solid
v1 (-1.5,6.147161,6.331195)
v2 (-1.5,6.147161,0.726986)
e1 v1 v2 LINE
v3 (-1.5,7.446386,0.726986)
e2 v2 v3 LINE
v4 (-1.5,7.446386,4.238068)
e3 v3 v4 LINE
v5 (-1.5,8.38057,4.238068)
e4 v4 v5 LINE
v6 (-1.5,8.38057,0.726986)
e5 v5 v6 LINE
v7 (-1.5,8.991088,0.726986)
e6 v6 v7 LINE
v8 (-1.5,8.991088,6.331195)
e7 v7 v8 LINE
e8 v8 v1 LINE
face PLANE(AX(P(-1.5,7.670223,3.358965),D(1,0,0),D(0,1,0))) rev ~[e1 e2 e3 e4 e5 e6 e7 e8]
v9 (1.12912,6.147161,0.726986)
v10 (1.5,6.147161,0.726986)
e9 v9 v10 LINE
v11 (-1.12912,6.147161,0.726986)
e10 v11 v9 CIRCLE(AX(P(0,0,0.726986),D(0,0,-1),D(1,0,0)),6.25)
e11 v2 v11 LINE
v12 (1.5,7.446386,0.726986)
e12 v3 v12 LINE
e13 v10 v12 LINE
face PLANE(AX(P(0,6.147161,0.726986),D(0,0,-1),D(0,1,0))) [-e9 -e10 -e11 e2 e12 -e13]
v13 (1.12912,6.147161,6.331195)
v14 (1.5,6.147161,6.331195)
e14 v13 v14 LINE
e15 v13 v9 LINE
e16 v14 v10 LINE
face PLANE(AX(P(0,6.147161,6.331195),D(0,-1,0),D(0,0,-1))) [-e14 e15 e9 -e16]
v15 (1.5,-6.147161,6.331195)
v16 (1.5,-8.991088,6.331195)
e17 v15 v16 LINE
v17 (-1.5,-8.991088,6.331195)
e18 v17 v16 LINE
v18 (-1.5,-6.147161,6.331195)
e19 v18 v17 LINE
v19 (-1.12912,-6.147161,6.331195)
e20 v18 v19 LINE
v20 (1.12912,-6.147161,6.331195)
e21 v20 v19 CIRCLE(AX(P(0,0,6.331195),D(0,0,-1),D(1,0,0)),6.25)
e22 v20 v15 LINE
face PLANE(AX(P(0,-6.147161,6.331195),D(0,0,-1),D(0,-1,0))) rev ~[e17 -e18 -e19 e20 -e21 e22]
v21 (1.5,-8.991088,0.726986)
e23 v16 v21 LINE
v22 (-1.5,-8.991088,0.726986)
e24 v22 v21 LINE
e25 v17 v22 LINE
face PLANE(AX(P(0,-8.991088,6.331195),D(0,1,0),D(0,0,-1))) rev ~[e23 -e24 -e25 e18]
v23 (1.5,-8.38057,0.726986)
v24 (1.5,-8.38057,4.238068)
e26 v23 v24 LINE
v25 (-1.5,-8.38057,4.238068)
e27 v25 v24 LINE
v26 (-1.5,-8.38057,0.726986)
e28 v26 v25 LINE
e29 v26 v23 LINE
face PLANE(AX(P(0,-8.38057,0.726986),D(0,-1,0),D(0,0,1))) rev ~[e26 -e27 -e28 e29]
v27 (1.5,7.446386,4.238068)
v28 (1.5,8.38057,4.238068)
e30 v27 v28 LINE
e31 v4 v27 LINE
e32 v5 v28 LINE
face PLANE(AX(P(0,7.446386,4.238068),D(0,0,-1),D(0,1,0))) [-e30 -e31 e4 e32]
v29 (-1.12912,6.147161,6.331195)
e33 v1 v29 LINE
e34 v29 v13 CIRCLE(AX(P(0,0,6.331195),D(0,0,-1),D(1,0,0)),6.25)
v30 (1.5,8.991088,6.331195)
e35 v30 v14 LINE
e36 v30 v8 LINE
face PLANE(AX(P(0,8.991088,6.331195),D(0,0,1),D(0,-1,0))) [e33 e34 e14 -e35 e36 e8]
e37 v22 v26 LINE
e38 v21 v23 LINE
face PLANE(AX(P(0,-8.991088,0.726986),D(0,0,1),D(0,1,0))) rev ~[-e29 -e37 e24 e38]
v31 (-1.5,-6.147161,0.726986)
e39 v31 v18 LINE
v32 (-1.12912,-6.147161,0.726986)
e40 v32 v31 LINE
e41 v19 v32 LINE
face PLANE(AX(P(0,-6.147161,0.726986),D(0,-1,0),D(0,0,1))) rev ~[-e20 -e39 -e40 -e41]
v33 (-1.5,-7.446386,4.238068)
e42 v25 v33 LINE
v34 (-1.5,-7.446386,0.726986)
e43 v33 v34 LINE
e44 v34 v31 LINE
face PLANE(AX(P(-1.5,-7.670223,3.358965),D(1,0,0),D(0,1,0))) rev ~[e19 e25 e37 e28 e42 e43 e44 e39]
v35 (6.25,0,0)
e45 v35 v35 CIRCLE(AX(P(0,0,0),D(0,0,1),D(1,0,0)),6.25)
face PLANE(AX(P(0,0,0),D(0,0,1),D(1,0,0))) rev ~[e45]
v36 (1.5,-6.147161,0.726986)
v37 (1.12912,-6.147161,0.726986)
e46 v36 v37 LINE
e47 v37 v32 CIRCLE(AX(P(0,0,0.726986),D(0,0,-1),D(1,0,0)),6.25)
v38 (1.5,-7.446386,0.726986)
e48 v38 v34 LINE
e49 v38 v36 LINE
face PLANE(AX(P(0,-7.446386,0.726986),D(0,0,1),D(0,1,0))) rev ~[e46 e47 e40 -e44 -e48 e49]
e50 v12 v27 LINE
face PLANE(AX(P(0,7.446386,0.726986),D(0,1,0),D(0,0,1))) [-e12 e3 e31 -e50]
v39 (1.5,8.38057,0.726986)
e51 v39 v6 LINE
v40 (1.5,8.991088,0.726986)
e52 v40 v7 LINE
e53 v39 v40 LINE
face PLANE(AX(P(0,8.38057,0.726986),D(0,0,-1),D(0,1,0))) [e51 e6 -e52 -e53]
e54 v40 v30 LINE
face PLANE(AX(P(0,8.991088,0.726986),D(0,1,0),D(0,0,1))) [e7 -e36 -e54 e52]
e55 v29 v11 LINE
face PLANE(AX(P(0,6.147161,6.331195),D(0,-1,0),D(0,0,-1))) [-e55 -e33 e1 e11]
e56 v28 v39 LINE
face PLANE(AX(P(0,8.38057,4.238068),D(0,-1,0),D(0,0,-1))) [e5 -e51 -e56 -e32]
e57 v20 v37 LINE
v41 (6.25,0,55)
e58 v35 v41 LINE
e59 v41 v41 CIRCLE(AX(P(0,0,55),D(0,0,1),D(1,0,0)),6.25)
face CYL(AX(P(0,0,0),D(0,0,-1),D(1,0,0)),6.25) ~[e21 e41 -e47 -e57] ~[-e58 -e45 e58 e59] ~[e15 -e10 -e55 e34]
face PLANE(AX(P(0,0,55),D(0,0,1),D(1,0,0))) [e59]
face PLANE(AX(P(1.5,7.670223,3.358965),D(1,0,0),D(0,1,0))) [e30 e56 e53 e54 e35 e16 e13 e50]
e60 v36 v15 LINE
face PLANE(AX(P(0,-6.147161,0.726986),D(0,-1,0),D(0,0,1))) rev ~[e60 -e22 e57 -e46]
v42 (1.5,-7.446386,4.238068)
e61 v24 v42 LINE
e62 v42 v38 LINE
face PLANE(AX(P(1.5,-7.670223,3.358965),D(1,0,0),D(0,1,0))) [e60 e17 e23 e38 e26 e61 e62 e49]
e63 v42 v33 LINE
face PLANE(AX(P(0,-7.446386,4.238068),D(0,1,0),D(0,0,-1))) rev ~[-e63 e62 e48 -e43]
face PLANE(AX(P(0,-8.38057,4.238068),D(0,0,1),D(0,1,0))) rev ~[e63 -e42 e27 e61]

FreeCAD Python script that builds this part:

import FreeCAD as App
import Part
import Sketcher
Q = App.Units.Quantity

doc = App.newDocument("Part")
params = doc.addObject("Spreadsheet::Sheet", "Params")
for row, (alias, value) in enumerate([
    ("sketch1_diameter", "12.5 mm"),
    ("pad1_length", "55 mm"),
    ("pad2_length", "3 mm"),
], start=1):
    params.set(f"A{row}", alias)
    params.set(f"B{row}", "=" + value)
    params.setAlias(f"B{row}", alias)

body = doc.addObject("PartDesign::Body", "Body")

sketch1 = doc.addObject("Sketcher::SketchObject", "Sketch")
body.addObject(sketch1)
sketch1.AttachmentSupport = (doc.XY_Plane, [""])
sketch1.MapMode = "FlatFace"
sketch1.addGeometry(Part.Circle(App.Vector(0, 0, 0), App.Vector(0, 0, 1), 6.25), False)
sketch1.addConstraint([
    Sketcher.Constraint("Coincident", 0, 3, -1, 1),
    Sketcher.Constraint("Diameter", 0, Q("12.5 mm")),
])
sketch1.setExpression("Constraints[1]", "Params.sketch1_diameter")
pad1 = doc.addObject("PartDesign::Pad", "Pad")
body.addObject(pad1)
pad1.Profile = sketch1
pad1.setExpression("Length", "Params.pad1_length")

sketch2 = doc.addObject("Sketcher::SketchObject", "Sketch001")
body.addObject(sketch2)
sketch2.AttachmentSupport = (doc.YZ_Plane, [""])
sketch2.MapMode = "FlatFace"
sketch2.addGeometry([
    Part.LineSegment(App.Vector(-6.147161, 0.726986, 0), App.Vector(-6.147161, 6.331195, 0)),
    Part.LineSegment(App.Vector(-6.147161, 6.331195, 0), App.Vector(-8.991088, 6.331195, 0)),
    Part.LineSegment(App.Vector(-8.991088, 6.331195, 0), App.Vector(-8.991088, 0.726986, 0)),
    Part.LineSegment(App.Vector(-8.991088, 0.726986, 0), App.Vector(-8.38057, 0.726986, 0)),
    Part.LineSegment(App.Vector(-8.38057, 0.726986, 0), App.Vector(-8.38057, 4.238068, 0)),
    Part.LineSegment(App.Vector(-8.38057, 4.238068, 0), App.Vector(-7.446386, 4.238068, 0)),
    Part.LineSegment(App.Vector(-7.446386, 4.238068, 0), App.Vector(-7.446386, 0.726986, 0)),
    Part.LineSegment(App.Vector(-7.446386, 0.726986, 0), App.Vector(-6.147161, 0.726986, 0)),
    Part.LineSegment(App.Vector(8.991088, 6.331195, 0), App.Vector(6.147161, 6.331195, 0)),
    Part.LineSegment(App.Vector(6.147161, 6.331195, 0), App.Vector(6.147161, 0.726986, 0)),
    Part.LineSegment(App.Vector(6.147161, 0.726986, 0), App.Vector(7.446386, 0.726986, 0)),
    Part.LineSegment(App.Vector(7.446386, 0.726986, 0), App.Vector(7.446386, 4.238068, 0)),
    Part.LineSegment(App.Vector(7.446386, 4.238068, 0), App.Vector(8.38057, 4.238068, 0)),
    Part.LineSegment(App.Vector(8.38057, 4.238068, 0), App.Vector(8.38057, 0.726986, 0)),
    Part.LineSegment(App.Vector(8.38057, 0.726986, 0), App.Vector(8.991088, 0.726986, 0)),
    Part.LineSegment(App.Vector(8.991088, 0.726986, 0), App.Vector(8.991088, 6.331195, 0)),
], False)
sketch2.addConstraint([
    Sketcher.Constraint("Coincident", 0, 2, 1, 1),
    Sketcher.Constraint("Coincident", 1, 2, 2, 1),
    Sketcher.Constraint("Coincident", 2, 2, 3, 1),
    Sketcher.Constraint("Coincident", 3, 2, 4, 1),
    Sketcher.Constraint("Coincident", 4, 2, 5, 1),
    Sketcher.Constraint("Coincident", 5, 2, 6, 1),
    Sketcher.Constraint("Coincident", 6, 2, 7, 1),
    Sketcher.Constraint("Coincident", 7, 2, 0, 1),
    Sketcher.Constraint("Coincident", 8, 2, 9, 1),
    Sketcher.Constraint("Coincident", 9, 2, 10, 1),
    Sketcher.Constraint("Coincident", 10, 2, 11, 1),
    Sketcher.Constraint("Coincident", 11, 2, 12, 1),
    Sketcher.Constraint("Coincident", 12, 2, 13, 1),
    Sketcher.Constraint("Coincident", 13, 2, 14, 1),
    Sketcher.Constraint("Coincident", 14, 2, 15, 1),
    Sketcher.Constraint("Coincident", 15, 2, 8, 1),
    Sketcher.Constraint("Vertical", 0),
    Sketcher.Constraint("Horizontal", 1),
    Sketcher.Constraint("Vertical", 2),
    Sketcher.Constraint("Horizontal", 3),
    Sketcher.Constraint("Vertical", 4),
    Sketcher.Constraint("Horizontal", 5),
    Sketcher.Constraint("Vertical", 6),
    Sketcher.Constraint("Horizontal", 7),
    Sketcher.Constraint("Horizontal", 8),
    Sketcher.Constraint("Vertical", 9),
    Sketcher.Constraint("Horizontal", 10),
    Sketcher.Constraint("Vertical", 11),
    Sketcher.Constraint("Horizontal", 12),
    Sketcher.Constraint("Vertical", 13),
    Sketcher.Constraint("Horizontal", 14),
    Sketcher.Constraint("Vertical", 15),
    Sketcher.Constraint("Symmetric", 0, 2, 8, 2, -2),
    Sketcher.Constraint("Symmetric", 6, 2, 10, 2, -2),
    Sketcher.Constraint("Symmetric", 4, 2, 12, 2, -2),
    Sketcher.Constraint("Symmetric", 2, 2, 14, 2, -2),
    Sketcher.Constraint("Horizontal", 3, 2, 6, 2),
    Sketcher.Constraint("DistanceY", 0, 1, 0, 2, Q("5.604209 mm")),
    Sketcher.Constraint("DistanceY", 4, 1, 4, 2, Q("3.511082 mm")),
    Sketcher.Constraint("DistanceX", 1, 2, 5, 2, Q("1.544702 mm")),
    Sketcher.Constraint("DistanceX", 1, 2, 1, 1, Q("2.843927 mm")),
    Sketcher.Constraint("DistanceX", 3, 1, 3, 2, Q("0.610518 mm")),
    Sketcher.Constraint("DistanceX", 0, 2, -1, 1, Q("6.147161 mm")),
    Sketcher.Constraint("DistanceY", -1, 1, 4, 2, Q("4.238068 mm")),
])
pad2 = doc.addObject("PartDesign::Pad", "Pad001")
body.addObject(pad2)
pad2.Profile = sketch2
pad2.setExpression("Length", "Params.pad2_length")
pad2.Midplane = True

doc.recompute()
